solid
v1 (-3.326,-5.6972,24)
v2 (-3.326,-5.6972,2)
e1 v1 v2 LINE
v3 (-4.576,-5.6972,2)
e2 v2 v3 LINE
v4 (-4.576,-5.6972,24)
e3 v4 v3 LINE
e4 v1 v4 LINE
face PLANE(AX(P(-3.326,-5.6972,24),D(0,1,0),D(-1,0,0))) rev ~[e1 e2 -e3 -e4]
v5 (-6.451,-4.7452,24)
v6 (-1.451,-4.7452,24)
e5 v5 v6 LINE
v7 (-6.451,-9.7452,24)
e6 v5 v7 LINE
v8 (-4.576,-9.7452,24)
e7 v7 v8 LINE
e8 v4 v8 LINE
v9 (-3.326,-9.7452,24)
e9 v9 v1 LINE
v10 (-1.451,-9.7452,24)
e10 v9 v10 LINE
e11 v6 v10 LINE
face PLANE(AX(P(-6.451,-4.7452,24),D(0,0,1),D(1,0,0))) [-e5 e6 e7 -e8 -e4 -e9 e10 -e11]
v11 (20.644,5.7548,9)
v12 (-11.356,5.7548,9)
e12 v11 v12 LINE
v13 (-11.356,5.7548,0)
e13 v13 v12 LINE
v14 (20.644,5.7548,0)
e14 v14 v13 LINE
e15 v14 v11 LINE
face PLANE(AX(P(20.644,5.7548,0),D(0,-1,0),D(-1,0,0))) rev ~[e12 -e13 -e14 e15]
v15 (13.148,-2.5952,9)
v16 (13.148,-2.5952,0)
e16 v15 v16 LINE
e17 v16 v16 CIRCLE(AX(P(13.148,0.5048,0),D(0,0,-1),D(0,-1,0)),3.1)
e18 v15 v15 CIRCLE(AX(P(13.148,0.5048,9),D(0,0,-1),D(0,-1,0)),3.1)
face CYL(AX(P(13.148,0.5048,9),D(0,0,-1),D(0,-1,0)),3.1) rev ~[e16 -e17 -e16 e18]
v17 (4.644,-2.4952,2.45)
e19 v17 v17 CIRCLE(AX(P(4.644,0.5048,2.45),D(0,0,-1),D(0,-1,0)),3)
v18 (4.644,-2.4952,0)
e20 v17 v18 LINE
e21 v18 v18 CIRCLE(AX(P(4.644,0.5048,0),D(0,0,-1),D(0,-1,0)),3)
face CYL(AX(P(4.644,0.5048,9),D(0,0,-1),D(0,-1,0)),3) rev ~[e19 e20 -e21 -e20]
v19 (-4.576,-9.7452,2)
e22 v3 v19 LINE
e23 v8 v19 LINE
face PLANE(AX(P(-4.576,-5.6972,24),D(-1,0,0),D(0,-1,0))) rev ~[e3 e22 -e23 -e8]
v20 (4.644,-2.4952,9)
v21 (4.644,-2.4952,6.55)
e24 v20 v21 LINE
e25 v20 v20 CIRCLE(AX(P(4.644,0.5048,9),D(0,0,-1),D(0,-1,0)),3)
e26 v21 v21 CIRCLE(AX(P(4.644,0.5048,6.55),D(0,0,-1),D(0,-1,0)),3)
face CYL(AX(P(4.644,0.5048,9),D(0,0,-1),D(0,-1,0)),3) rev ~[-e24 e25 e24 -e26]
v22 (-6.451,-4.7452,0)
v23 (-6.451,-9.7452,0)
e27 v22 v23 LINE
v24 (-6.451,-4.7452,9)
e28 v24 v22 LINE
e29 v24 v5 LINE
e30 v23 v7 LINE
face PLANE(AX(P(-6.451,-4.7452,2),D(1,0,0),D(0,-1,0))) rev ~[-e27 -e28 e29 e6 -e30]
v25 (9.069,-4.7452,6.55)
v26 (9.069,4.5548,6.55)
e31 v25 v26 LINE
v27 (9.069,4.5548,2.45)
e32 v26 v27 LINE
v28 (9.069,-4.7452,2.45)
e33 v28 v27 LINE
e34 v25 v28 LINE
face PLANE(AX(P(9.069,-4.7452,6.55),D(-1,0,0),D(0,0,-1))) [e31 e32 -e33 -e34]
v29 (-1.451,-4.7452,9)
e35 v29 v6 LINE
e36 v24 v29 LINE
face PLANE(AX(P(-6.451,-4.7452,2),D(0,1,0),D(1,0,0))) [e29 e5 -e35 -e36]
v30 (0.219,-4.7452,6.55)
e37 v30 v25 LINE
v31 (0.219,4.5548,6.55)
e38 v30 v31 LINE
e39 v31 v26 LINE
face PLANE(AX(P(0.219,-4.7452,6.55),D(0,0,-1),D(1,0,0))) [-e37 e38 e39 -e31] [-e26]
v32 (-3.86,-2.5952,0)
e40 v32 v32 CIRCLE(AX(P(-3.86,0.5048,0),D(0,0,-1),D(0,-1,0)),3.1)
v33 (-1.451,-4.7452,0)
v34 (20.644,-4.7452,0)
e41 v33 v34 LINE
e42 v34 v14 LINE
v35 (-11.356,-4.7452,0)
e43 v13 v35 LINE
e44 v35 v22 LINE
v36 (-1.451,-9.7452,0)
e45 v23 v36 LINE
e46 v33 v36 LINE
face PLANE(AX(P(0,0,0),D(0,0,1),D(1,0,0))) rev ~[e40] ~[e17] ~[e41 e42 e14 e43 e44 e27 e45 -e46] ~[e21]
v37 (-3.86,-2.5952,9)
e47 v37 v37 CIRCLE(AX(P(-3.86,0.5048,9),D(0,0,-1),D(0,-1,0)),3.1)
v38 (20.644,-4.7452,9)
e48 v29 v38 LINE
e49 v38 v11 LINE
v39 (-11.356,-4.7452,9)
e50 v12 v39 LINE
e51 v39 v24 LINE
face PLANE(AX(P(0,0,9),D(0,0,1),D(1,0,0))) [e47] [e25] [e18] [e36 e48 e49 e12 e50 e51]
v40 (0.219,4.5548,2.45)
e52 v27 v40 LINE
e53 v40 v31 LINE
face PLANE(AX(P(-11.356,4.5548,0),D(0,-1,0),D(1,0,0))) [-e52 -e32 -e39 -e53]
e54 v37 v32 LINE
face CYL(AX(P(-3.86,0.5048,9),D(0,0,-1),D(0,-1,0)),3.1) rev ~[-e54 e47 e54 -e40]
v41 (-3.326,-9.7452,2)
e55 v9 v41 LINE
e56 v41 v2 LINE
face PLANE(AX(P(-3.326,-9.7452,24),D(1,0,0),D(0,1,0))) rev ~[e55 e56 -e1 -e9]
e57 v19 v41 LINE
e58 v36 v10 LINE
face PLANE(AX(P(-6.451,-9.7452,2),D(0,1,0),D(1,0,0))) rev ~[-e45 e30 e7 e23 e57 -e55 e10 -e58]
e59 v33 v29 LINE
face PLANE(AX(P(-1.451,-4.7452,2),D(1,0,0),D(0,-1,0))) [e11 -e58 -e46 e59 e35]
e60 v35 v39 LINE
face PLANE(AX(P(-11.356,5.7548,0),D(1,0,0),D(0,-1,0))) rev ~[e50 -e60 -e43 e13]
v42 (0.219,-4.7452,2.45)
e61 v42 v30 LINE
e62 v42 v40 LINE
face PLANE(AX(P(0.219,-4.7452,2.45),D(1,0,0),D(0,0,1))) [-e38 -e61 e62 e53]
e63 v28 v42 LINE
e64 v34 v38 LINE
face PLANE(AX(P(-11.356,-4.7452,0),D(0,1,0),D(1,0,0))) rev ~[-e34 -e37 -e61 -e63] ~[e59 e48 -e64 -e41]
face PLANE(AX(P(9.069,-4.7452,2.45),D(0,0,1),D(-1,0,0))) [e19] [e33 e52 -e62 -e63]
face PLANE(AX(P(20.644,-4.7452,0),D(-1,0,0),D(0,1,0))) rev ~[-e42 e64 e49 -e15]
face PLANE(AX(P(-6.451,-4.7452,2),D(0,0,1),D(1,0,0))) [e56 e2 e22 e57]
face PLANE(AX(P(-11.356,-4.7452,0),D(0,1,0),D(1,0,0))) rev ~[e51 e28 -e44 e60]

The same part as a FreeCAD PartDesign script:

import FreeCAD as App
import Part
import Sketcher

V = App.Vector

doc = App.newDocument("Part")
body = doc.addObject("PartDesign::Body", "Body")

# Sketch on XY plane
sketch1 = body.newObject("Sketcher::SketchObject", "Sketch")
sketch1.AttachmentSupport = (doc.getObject("XY_Plane"), [""])
sketch1.MapMode = "FlatFace"
sketch1.addGeometry([
    Part.LineSegment(V(-11, 6, 0), V(-11, -5, 0)),
    Part.LineSegment(V(-11, -5, 0), V(21, -5, 0)),
    Part.LineSegment(V(21, -5, 0), V(21, 6, 0)),
    Part.LineSegment(V(21, 6, 0), V(-11, 6, 0)),
], False)
sketch1.addConstraint([
    Sketcher.Constraint("Coincident", 0, 2, 1, 1),
    Sketcher.Constraint("Coincident", 1, 2, 2, 1),
    Sketcher.Constraint("Coincident", 2, 2, 3, 1),
    Sketcher.Constraint("Coincident", 3, 2, 0, 1),
    Sketcher.Constraint("Vertical", 0),
    Sketcher.Constraint("Horizontal", 1),
    Sketcher.Constraint("Vertical", 2),
    Sketcher.Constraint("Horizontal", 3),
    Sketcher.Constraint("DistanceX", 1, 1, 1, 2, 32.0),
    Sketcher.Constraint("DistanceY", 0, 2, 0, 1, 10.5),
    Sketcher.Constraint("DistanceX", 0, 2, -1, 1, 11.356),
    Sketcher.Constraint("DistanceY", 0, 2, -1, 1, 4.7452),
])
pad1 = body.newObject("PartDesign::Pad", "Pad")
pad1.Profile = sketch1
pad1.Length = 9

# Sketch on XZ plane
sketch2 = body.newObject("Sketcher::SketchObject", "Sketch001")
sketch2.AttachmentSupport = (doc.getObject("XZ_Plane"), [""])
sketch2.MapMode = "FlatFace"
sketch2.AttachmentOffset = App.Placement(V(0, 0, 4.7452), App.Rotation())
sketch2.addGeometry([
    Part.LineSegment(V(9.1, 6.5, 0), V(0.2, 6.5, 0)),
    Part.LineSegment(V(0.2, 6.5, 0), V(0.2, 2.5, 0)),
    Part.LineSegment(V(0.2, 2.5, 0), V(9.1, 2.5, 0)),
    Part.LineSegment(V(9.1, 2.5, 0), V(9.1, 6.5, 0)),
], False)
sketch2.addConstraint([
    Sketcher.Constraint("Coincident", 0, 2, 1, 1),
    Sketcher.Constraint("Coincident", 1, 2, 2, 1),
    Sketcher.Constraint("Coincident", 2, 2, 3, 1),
    Sketcher.Constraint("Coincident", 3, 2, 0, 1),
    Sketcher.Constraint("Horizontal", 0),
    Sketcher.Constraint("Vertical", 1),
    Sketcher.Constraint("Horizontal", 2),
    Sketcher.Constraint("Vertical", 3),
    Sketcher.Constraint("DistanceY", 1, 2, 1, 1, 4.1),
    Sketcher.Constraint("DistanceX", 0, 2, 0, 1, 8.85),
    Sketcher.Constraint("DistanceY", -1, 1, 1, 2, 2.45),
    Sketcher.Constraint("DistanceX", -1, 1, 0, 2, 0.219),
])
pocket1 = body.newObject("PartDesign::Pocket", "Pocket")
pocket1.Profile = sketch2
pocket1.Length = 9.3

# Sketch on XZ plane
sketch3 = body.newObject("Sketcher::SketchObject", "Sketch002")
sketch3.AttachmentSupport = (doc.getObject("XZ_Plane"), [""])
sketch3.MapMode = "FlatFace"
sketch3.AttachmentOffset = App.Placement(V(0, 0, 4.7452), App.Rotation())
sketch3.addGeometry([
    Part.LineSegment(V(-6.5, 2, 0), V(-6.5, 0, 0)),
    Part.LineSegment(V(-6.5, 0, 0), V(-1.5, 0, 0)),
    Part.LineSegment(V(-1.5, 0, 0), V(-1.5, 2, 0)),
    Part.LineSegment(V(-1.5, 2, 0), V(-6.5, 2, 0)),
], False)
sketch3.addConstraint([
    Sketcher.Constraint("Coincident", 0, 2, 1, 1),
    Sketcher.Constraint("Coincident", 1, 2, 2, 1),
    Sketcher.Constraint("Coincident", 2, 2, 3, 1),
    Sketcher.Constraint("Coincident", 3, 2, 0, 1),
    Sketcher.Constraint("Vertical", 0),
    Sketcher.Constraint("Horizontal", 1),
    Sketcher.Constraint("Vertical", 2),
    Sketcher.Constraint("Horizontal", 3),
    Sketcher.Constraint("PointOnObject", 0, 2, -1),
    Sketcher.Constraint("DistanceX", 1, 1, 1, 2, 5.0),
    Sketcher.Constraint("DistanceY", 0, 2, 0, 1, 2.0),
    Sketcher.Constraint("DistanceX", 0, 2, -1, 1, 6.451),
])
pad2 = body.newObject("PartDesign::Pad", "Pad001")
pad2.Profile = sketch3
pad2.Length = 5

# Sketch on XY plane
sketch4 = body.newObject("Sketcher::SketchObject", "Sketch003")
sketch4.AttachmentSupport = (doc.getObject("XY_Plane"), [""])
sketch4.MapMode = "FlatFace"
sketch4.AttachmentOffset = App.Placement(V(0, 0, 2), App.Rotation())
sketch4.addGeometry([
    Part.LineSegment(V(-6, -5, 0), V(-6, -10, 0)),
    Part.LineSegment(V(-6, -10, 0), V(-1, -10, 0)),
    Part.LineSegment(V(-1, -10, 0), V(-1, -5, 0)),
    Part.LineSegment(V(-1, -5, 0), V(-6, -5, 0)),
], False)
sketch4.addConstraint([
    Sketcher.Constraint("Coincident", 0, 2, 1, 1),
    Sketcher.Constraint("Coincident", 1, 2, 2, 1),
    Sketcher.Constraint("Coincident", 2, 2, 3, 1),
    Sketcher.Constraint("Coincident", 3, 2, 0, 1),
    Sketcher.Constraint("Vertical", 0),
    Sketcher.Constraint("Horizontal", 1),
    Sketcher.Constraint("Vertical", 2),
    Sketcher.Constraint("Horizontal", 3),
    Sketcher.Constraint("Equal", 3, 0),
    Sketcher.Constraint("DistanceX", 1, 1, 1, 2, 5.0),
    Sketcher.Constraint("DistanceX", 0, 2, -1, 1, 6.451),
    Sketcher.Constraint("DistanceY", 0, 2, -1, 1, 9.7452),
])
pad3 = body.newObject("PartDesign::Pad", "Pad002")
pad3.Profile = sketch4
pad3.Length = 22

# Sketch on XY plane
sketch5 = body.newObject("Sketcher::SketchObject", "Sketch004")
sketch5.AttachmentSupport = (doc.getObject("XY_Plane"), [""])
sketch5.MapMode = "FlatFace"
sketch5.AttachmentOffset = App.Placement(V(0, 0, 24), App.Rotation())
sketch5.addGeometry([
    Part.LineSegment(V(-4.6, -5.7, 0), V(-4.6, -9.7, 0)),
    Part.LineSegment(V(-4.6, -9.7, 0), V(-3.3, -9.7, 0)),
    Part.LineSegment(V(-3.3, -9.7, 0), V(-3.3, -5.7, 0)),
    Part.LineSegment(V(-3.3, -5.7, 0), V(-4.6, -5.7, 0)),
], False)
sketch5.addConstraint([
    Sketcher.Constraint("Coincident", 0, 2, 1, 1),
    Sketcher.Constraint("Coincident", 1, 2, 2, 1),
    Sketcher.Constraint("Coincident", 2, 2, 3, 1),
    Sketcher.Constraint("Coincident", 3, 2, 0, 1),
    Sketcher.Constraint("Vertical", 0),
    Sketcher.Constraint("Horizontal", 1),
    Sketcher.Constraint("Vertical", 2),
    Sketcher.Constraint("Horizontal", 3),
    Sketcher.Constraint("DistanceY", 0, 2, 0, 1, 4.048),
    Sketcher.Constraint("DistanceX", 1, 1, 1, 2, 1.25),
    Sketcher.Constraint("DistanceX", 0, 2, -1, 1, 4.576),
    Sketcher.Constraint("DistanceY", 0, 2, -1, 1, 9.7452),
])
pocket2 = body.newObject("PartDesign::Pocket", "Pocket001")
pocket2.Profile = sketch5
pocket2.Length = 22

# Sketch on XY plane
sketch6 = body.newObject("Sketcher::SketchObject", "Sketch005")
sketch6.AttachmentSupport = (doc.getObject("XY_Plane"), [""])
sketch6.MapMode = "FlatFace"
sketch6.AttachmentOffset = App.Placement(V(0, 0, 9), App.Rotation())
sketch6.addGeometry(Part.Circle(V(4.6, 0.5, 0), V(0, 0, 1), 3), False)
sketch6.addConstraint([
    Sketcher.Constraint("Diameter", 0, 6.0),
    Sketcher.Constraint("DistanceX", -1, 1, 0, 3, 4.644),
    Sketcher.Constraint("DistanceY", -1, 1, 0, 3, 0.5048),
])
doc.recompute()
hole = body.newObject("PartDesign::Hole", "Hole")
hole.Profile = sketch6
hole.ThreadType = "None"
hole.Diameter = 6
hole.DepthType = "ThroughAll"

# Sketch on XY plane
sketch7 = body.newObject("Sketcher::SketchObject", "Sketch006")
sketch7.AttachmentSupport = (doc.getObject("XY_Plane"), [""])
sketch7.MapMode = "FlatFace"
sketch7.AttachmentOffset = App.Placement(V(0, 0, 9), App.Rotation())
sketch7.addGeometry([
    Part.Circle(V(13.1, 0.5, 0), V(0, 0, 1), 3.1),
    Part.Circle(V(-3.9, 0.5, 0), V(0, 0, 1), 3.1),
], False)
sketch7.addConstraint([
    Sketcher.Constraint("Equal", 0, 1),
    Sketcher.Constraint("Horizontal", 0, 3, 1, 3),
    Sketcher.Constraint("Diameter", 0, 6.2),
    Sketcher.Constraint("DistanceX", 1, 3, -1, 1, 3.86),
    Sketcher.Constraint("DistanceX", -1, 1, 0, 3, 13.148),
    Sketcher.Constraint("DistanceY", -1, 1, 0, 3, 0.5048),
])
doc.recompute()
hole2 = body.newObject("PartDesign::Hole", "Hole001")
hole2.Profile = sketch7
hole2.ThreadType = "None"
hole2.Diameter = 6.2
hole2.DepthType = "ThroughAll"

doc.recompute()
